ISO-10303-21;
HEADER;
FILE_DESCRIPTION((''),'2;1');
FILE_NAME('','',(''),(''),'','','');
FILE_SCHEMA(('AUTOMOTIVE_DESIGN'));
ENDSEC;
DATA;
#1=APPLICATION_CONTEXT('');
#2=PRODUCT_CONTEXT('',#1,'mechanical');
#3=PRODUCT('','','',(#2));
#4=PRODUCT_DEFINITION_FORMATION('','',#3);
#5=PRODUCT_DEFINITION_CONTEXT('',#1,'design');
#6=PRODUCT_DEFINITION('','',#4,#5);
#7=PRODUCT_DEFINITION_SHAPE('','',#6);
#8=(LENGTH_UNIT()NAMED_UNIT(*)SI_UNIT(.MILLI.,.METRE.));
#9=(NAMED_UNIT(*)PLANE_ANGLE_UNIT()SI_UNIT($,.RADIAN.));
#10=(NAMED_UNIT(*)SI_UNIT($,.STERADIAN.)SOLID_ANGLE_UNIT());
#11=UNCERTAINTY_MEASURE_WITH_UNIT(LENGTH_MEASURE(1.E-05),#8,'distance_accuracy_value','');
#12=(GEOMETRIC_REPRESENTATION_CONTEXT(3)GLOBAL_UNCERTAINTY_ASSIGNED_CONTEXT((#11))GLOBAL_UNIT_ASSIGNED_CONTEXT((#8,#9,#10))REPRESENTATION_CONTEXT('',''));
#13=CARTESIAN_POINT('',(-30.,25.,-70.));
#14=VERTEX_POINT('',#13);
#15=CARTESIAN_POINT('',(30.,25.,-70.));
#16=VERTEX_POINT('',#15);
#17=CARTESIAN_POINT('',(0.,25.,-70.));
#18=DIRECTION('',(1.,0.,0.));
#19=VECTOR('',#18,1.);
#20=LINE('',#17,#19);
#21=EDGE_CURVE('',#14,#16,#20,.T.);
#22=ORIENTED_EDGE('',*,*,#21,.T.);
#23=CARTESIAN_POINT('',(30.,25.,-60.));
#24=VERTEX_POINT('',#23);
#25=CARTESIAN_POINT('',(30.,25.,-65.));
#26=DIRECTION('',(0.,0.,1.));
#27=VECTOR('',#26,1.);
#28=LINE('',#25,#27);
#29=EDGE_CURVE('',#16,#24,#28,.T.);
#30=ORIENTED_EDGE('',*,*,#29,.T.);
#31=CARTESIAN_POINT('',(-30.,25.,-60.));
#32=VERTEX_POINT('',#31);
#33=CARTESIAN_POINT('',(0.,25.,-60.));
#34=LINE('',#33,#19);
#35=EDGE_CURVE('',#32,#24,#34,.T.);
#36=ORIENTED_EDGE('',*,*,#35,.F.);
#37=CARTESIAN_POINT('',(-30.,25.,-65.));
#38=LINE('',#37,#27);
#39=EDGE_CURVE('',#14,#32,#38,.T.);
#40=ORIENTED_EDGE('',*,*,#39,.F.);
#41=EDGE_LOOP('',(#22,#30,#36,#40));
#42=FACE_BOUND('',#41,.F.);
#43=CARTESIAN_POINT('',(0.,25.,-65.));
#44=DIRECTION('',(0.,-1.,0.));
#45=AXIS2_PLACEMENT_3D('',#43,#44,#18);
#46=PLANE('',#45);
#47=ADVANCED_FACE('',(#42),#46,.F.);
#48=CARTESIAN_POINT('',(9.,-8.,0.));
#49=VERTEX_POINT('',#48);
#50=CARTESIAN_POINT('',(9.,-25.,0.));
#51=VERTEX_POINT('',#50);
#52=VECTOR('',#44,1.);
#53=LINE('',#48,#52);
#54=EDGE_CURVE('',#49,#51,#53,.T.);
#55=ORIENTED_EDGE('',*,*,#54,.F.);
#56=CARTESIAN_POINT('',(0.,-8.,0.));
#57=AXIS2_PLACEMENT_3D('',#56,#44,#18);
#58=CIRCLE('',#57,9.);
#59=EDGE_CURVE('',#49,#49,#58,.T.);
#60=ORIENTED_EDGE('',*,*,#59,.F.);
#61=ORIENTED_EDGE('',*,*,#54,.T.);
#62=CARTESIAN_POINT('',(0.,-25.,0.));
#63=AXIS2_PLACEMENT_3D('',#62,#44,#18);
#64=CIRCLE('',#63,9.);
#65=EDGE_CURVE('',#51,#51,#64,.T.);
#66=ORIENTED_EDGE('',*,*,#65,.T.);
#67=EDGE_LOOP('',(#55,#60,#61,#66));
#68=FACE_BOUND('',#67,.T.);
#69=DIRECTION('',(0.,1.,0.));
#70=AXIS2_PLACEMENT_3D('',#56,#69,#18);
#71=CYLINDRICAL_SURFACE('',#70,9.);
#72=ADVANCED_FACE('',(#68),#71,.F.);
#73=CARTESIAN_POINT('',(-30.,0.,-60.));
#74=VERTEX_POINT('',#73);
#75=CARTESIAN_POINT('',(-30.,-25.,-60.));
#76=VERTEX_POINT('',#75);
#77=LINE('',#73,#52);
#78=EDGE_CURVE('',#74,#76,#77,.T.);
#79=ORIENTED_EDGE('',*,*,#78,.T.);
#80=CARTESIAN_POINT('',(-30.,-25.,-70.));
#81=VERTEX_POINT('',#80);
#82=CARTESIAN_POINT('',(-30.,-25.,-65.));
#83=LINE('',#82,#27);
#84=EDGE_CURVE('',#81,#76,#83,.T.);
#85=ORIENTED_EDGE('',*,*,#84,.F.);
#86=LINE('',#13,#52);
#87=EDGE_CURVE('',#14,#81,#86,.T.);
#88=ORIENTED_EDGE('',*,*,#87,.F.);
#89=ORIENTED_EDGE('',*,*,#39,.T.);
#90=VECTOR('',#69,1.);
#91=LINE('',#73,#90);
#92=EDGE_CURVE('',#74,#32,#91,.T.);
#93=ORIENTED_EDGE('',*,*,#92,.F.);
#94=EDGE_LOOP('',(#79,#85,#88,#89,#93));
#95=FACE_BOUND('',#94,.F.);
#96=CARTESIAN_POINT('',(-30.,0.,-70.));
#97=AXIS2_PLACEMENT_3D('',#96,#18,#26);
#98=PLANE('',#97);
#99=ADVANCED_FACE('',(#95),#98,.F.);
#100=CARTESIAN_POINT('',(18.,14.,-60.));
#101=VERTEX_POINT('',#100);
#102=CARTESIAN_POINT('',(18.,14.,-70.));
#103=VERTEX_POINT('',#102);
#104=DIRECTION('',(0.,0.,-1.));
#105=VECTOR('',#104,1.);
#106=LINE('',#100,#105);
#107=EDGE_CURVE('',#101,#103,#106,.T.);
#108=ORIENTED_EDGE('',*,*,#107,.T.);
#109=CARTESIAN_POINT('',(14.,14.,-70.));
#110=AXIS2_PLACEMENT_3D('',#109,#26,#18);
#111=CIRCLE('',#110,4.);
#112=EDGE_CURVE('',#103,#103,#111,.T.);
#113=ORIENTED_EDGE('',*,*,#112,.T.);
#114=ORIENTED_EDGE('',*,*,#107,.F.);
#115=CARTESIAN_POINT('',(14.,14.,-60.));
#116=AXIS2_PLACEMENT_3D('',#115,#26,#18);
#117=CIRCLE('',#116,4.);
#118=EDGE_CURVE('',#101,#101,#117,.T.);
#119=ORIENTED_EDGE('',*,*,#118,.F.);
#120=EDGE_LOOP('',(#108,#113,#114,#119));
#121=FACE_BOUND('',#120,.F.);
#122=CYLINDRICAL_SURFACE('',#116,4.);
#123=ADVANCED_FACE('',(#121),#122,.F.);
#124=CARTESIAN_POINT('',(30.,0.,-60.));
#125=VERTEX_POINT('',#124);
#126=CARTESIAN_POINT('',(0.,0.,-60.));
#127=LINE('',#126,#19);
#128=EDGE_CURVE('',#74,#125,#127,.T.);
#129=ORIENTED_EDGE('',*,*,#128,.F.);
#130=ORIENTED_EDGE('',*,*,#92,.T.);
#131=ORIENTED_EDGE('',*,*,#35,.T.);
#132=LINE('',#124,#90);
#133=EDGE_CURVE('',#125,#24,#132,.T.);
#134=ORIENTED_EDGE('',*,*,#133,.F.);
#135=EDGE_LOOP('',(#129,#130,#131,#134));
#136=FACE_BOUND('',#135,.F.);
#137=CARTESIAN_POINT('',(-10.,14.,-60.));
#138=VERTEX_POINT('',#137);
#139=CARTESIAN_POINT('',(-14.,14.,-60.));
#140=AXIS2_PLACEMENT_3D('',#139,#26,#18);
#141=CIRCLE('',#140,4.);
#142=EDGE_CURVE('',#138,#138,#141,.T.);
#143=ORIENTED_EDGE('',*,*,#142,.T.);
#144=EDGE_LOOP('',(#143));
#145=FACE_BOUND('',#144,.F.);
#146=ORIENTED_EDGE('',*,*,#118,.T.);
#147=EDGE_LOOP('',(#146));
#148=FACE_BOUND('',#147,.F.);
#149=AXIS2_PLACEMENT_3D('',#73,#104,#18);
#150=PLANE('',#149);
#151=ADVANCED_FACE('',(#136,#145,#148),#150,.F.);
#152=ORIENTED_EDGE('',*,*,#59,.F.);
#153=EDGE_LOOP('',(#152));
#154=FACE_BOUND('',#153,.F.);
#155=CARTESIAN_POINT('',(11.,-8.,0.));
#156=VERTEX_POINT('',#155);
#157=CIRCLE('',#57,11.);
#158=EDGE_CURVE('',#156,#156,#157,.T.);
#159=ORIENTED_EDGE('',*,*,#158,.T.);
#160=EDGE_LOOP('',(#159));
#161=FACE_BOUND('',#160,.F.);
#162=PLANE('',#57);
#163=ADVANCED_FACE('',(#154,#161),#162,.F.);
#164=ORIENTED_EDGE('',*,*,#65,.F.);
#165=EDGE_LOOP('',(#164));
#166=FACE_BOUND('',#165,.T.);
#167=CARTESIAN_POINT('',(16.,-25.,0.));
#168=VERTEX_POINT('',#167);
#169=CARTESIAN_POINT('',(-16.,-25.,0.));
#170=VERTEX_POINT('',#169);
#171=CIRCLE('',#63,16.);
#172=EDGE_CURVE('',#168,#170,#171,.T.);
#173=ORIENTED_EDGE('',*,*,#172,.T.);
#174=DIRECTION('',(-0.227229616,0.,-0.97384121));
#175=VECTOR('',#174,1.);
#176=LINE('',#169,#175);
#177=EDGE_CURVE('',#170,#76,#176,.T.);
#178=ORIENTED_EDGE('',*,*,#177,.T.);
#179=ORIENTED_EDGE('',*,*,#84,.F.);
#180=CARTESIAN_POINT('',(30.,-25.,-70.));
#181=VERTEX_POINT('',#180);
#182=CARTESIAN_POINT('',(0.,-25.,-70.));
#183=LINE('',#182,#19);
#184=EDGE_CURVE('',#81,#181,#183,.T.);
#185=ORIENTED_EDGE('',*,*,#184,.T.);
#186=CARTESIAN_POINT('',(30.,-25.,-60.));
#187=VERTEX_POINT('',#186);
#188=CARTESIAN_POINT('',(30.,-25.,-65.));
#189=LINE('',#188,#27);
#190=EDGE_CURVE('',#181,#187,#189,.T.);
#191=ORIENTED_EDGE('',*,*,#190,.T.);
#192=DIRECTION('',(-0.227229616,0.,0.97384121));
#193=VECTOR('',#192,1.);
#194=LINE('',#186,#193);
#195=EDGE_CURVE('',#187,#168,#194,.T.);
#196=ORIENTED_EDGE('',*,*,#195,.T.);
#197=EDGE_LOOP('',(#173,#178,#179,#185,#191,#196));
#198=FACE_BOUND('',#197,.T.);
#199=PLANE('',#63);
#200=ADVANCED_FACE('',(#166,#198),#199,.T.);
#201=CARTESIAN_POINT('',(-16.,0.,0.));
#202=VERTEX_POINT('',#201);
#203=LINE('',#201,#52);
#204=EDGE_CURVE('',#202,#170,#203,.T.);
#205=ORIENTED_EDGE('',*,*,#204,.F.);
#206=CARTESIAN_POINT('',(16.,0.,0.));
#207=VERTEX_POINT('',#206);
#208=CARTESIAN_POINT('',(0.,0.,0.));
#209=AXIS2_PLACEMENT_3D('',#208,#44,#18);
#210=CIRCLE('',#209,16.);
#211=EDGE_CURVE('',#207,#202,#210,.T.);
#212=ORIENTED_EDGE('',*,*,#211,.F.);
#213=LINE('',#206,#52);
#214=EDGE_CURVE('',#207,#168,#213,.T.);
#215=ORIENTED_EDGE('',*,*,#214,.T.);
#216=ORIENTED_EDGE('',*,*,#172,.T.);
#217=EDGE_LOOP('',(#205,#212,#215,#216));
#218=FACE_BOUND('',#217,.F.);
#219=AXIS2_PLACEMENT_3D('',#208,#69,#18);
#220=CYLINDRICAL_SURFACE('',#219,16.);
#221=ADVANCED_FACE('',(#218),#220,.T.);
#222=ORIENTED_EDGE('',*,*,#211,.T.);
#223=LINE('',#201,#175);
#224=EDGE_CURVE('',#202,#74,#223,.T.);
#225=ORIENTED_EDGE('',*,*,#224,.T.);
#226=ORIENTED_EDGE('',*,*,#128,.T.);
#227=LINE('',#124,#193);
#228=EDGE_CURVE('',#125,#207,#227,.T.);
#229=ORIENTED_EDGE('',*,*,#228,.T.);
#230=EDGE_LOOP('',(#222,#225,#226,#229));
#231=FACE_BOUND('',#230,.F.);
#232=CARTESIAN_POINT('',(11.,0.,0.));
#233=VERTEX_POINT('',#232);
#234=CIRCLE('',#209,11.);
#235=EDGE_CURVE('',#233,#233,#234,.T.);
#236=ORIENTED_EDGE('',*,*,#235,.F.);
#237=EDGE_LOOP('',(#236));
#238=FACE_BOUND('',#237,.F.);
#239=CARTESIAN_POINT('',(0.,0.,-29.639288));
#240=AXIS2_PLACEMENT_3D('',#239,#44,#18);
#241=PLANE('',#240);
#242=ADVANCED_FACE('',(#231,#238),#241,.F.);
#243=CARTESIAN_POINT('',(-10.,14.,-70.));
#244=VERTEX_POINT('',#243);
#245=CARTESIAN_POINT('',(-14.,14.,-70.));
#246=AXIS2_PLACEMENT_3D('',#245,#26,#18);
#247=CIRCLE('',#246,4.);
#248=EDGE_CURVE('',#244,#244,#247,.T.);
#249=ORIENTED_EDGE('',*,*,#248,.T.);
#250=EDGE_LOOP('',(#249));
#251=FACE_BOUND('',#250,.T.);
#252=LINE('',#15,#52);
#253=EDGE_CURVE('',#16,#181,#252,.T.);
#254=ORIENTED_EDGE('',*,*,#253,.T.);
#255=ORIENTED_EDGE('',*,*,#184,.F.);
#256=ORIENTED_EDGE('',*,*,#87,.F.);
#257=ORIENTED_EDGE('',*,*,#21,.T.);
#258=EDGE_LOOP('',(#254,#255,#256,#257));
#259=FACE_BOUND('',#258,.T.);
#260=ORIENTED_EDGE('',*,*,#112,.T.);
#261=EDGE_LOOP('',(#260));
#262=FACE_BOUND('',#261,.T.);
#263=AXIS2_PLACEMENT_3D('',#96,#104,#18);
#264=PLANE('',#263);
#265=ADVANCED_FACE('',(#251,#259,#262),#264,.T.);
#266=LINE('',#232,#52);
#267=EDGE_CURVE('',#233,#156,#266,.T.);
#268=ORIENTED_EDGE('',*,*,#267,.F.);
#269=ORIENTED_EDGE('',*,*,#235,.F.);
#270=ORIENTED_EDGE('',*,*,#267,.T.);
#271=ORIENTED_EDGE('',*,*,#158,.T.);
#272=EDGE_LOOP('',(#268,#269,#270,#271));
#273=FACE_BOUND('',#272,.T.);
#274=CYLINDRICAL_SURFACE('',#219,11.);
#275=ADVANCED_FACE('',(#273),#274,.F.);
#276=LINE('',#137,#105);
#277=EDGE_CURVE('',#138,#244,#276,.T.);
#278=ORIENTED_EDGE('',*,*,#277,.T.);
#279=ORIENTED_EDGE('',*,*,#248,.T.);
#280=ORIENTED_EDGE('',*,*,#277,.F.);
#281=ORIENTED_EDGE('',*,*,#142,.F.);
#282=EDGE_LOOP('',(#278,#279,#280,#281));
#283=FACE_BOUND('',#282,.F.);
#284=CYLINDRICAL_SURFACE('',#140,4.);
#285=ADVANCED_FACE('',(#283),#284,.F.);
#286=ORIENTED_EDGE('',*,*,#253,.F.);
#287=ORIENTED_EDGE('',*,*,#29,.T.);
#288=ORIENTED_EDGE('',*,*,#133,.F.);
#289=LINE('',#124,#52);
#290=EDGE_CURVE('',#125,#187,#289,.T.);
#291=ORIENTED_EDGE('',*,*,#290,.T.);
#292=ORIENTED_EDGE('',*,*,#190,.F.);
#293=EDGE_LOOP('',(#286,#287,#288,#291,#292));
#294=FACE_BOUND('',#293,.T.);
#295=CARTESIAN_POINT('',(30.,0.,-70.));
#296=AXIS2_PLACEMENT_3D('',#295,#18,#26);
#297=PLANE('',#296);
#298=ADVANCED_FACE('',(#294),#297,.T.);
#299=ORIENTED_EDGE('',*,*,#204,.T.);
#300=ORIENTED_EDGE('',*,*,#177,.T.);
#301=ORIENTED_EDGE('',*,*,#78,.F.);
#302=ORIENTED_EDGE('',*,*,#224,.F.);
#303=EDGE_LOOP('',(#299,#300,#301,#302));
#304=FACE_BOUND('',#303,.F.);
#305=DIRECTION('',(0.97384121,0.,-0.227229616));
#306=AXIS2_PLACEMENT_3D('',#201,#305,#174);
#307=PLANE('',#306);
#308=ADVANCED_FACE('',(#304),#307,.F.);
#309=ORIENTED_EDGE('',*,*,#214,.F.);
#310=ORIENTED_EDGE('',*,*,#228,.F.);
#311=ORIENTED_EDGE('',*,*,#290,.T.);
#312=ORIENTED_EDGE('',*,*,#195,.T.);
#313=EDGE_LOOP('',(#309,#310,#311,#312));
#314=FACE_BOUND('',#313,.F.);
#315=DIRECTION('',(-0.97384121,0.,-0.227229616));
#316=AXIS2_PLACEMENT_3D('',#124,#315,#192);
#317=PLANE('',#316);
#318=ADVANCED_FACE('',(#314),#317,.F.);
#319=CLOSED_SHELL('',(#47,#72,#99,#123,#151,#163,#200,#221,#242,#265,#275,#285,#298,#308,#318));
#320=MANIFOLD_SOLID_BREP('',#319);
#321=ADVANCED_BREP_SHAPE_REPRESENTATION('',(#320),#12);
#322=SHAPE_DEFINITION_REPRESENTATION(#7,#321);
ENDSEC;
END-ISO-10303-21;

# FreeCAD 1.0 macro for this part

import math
import FreeCAD as App
import Part
import Sketcher
from FreeCAD import Vector
Q = App.Units.Quantity

doc = App.newDocument("Part")
body = doc.addObject("PartDesign::Body", "Body")

# Sketch on XZ plane
sketch1 = body.newObject("Sketcher::SketchObject", "Sketch")
sketch1.AttachmentSupport = (doc.getObject("XZ_Plane"), [""])
sketch1.MapMode = "FlatFace"
sketch1.addGeometry([
    Part.ArcOfCircle(Part.Circle(Vector(0, 0, 0), Vector(0, 0, 1), 16), math.radians(0), math.radians(180)),  # 0
    Part.LineSegment(Vector(-16, 0, 0), Vector(-30, -60, 0)),  # 1
    Part.LineSegment(Vector(-30, -60, 0), Vector(-30, -70, 0)),  # 2
    Part.LineSegment(Vector(-30, -70, 0), Vector(30, -70, 0)),  # 3
    Part.LineSegment(Vector(30, -70, 0), Vector(30, -60, 0)),  # 4
    Part.LineSegment(Vector(30, -60, 0), Vector(16, 0, 0)),  # 5
    Part.Circle(Vector(0, 0, 0), Vector(0, 0, 1), 11),  # 6
], False)
sketch1.addConstraint([
    Sketcher.Constraint("Coincident", 0, 2, 1, 1),
    Sketcher.Constraint("Coincident", 1, 2, 2, 1),
    Sketcher.Constraint("Coincident", 2, 2, 3, 1),
    Sketcher.Constraint("Coincident", 3, 2, 4, 1),
    Sketcher.Constraint("Coincident", 4, 2, 5, 1),
    Sketcher.Constraint("Coincident", 5, 2, 0, 1),
    Sketcher.Constraint("Vertical", 2),
    Sketcher.Constraint("Horizontal", 3),
    Sketcher.Constraint("Vertical", 4),
    Sketcher.Constraint("Coincident", 0, 3, -1, 1),
    Sketcher.Constraint("Coincident", 6, 3, -1, 1),
    Sketcher.Constraint("Symmetric", 1, 2, 4, 2, -2),
    Sketcher.Constraint("PointOnObject", 0, 2, -1),
    Sketcher.Constraint("PointOnObject", 5, 2, -1),
    Sketcher.Constraint("Diameter", 6, Q("22 mm")),
    Sketcher.Constraint("Radius", 0, Q("16 mm")),
    Sketcher.Constraint("DistanceX", 3, 1, 3, 2, Q("60 mm")),
    Sketcher.Constraint("DistanceY", 2, 2, 2, 1, Q("10 mm")),
    Sketcher.Constraint("DistanceY", 1, 2, -1, 1, Q("60 mm")),
])
pad1 = body.newObject("PartDesign::Pad", "Pad")
pad1.Profile = sketch1
pad1.Length = 25

# Sketch on XZ plane
sketch2 = body.newObject("Sketcher::SketchObject", "Sketch001")
sketch2.AttachmentSupport = (doc.getObject("XZ_Plane"), [""])
sketch2.MapMode = "FlatFace"
sketch2.addGeometry([
    Part.LineSegment(Vector(-30, -60, 0), Vector(-30, -70, 0)),
    Part.LineSegment(Vector(-30, -70, 0), Vector(30, -70, 0)),
    Part.LineSegment(Vector(30, -70, 0), Vector(30, -60, 0)),
    Part.LineSegment(Vector(30, -60, 0), Vector(-30, -60, 0)),
], False)
sketch2.addConstraint([
    Sketcher.Constraint("Coincident", 0, 2, 1, 1),
    Sketcher.Constraint("Coincident", 1, 2, 2, 1),
    Sketcher.Constraint("Coincident", 2, 2, 3, 1),
    Sketcher.Constraint("Coincident", 3, 2, 0, 1),
    Sketcher.Constraint("Vertical", 0),
    Sketcher.Constraint("Horizontal", 1),
    Sketcher.Constraint("Vertical", 2),
    Sketcher.Constraint("Horizontal", 3),
    Sketcher.Constraint("DistanceX", 1, 1, 1, 2, Q("60 mm")),
    Sketcher.Constraint("DistanceY", 0, 2, 0, 1, Q("10 mm")),
    Sketcher.Constraint("DistanceX", 0, 2, -1, 1, Q("30 mm")),
    Sketcher.Constraint("DistanceY", 0, 2, -1, 1, Q("70 mm")),
])
pad2 = body.newObject("PartDesign::Pad", "Pad001")
pad2.Profile = sketch2
pad2.Length = 25
pad2.Reversed = True

# Sketch on XZ plane
sketch3 = body.newObject("Sketcher::SketchObject", "Sketch002")
sketch3.AttachmentSupport = (doc.getObject("XZ_Plane"), [""])
sketch3.MapMode = "FlatFace"
sketch3.AttachmentOffset = App.Placement(Vector(0, 0, 8), App.Rotation())
sketch3.addGeometry([
    Part.Circle(Vector(0, 0, 0), Vector(0, 0, 1), 11),
    Part.Circle(Vector(0, 0, 0), Vector(0, 0, 1), 9),
], False)
sketch3.addConstraint([
    Sketcher.Constraint("Coincident", 0, 3, -1, 1),
    Sketcher.Constraint("Coincident", 1, 3, -1, 1),
    Sketcher.Constraint("Diameter", 0, Q("22 mm")),
    Sketcher.Constraint("Diameter", 1, Q("18 mm")),
])
pad3 = body.newObject("PartDesign::Pad", "Pad002")
pad3.Profile = sketch3
pad3.Length = 17

# Sketch on XY plane
sketch4 = body.newObject("Sketcher::SketchObject", "Sketch003")
sketch4.AttachmentSupport = (doc.getObject("XY_Plane"), [""])
sketch4.MapMode = "FlatFace"
sketch4.AttachmentOffset = App.Placement(Vector(0, 0, -60), App.Rotation())
sketch4.addGeometry([
    Part.Circle(Vector(-14, 14, 0), Vector(0, 0, 1), 4),
    Part.Circle(Vector(14, 14, 0), Vector(0, 0, 1), 4),
], False)
sketch4.addConstraint([
    Sketcher.Constraint("Equal", 0, 1),
    Sketcher.Constraint("Symmetric", 0, 3, 1, 3, -2),
    Sketcher.Constraint("Diameter", 0, Q("8 mm")),
    Sketcher.Constraint("DistanceX", 0, 3, -1, 1, Q("14 mm")),
    Sketcher.Constraint("DistanceY", -1, 1, 0, 3, Q("14 mm")),
])
pocket1 = body.newObject("PartDesign::Pocket", "Pocket")
pocket1.Profile = sketch4
pocket1.Length = 25

doc.recompute()
